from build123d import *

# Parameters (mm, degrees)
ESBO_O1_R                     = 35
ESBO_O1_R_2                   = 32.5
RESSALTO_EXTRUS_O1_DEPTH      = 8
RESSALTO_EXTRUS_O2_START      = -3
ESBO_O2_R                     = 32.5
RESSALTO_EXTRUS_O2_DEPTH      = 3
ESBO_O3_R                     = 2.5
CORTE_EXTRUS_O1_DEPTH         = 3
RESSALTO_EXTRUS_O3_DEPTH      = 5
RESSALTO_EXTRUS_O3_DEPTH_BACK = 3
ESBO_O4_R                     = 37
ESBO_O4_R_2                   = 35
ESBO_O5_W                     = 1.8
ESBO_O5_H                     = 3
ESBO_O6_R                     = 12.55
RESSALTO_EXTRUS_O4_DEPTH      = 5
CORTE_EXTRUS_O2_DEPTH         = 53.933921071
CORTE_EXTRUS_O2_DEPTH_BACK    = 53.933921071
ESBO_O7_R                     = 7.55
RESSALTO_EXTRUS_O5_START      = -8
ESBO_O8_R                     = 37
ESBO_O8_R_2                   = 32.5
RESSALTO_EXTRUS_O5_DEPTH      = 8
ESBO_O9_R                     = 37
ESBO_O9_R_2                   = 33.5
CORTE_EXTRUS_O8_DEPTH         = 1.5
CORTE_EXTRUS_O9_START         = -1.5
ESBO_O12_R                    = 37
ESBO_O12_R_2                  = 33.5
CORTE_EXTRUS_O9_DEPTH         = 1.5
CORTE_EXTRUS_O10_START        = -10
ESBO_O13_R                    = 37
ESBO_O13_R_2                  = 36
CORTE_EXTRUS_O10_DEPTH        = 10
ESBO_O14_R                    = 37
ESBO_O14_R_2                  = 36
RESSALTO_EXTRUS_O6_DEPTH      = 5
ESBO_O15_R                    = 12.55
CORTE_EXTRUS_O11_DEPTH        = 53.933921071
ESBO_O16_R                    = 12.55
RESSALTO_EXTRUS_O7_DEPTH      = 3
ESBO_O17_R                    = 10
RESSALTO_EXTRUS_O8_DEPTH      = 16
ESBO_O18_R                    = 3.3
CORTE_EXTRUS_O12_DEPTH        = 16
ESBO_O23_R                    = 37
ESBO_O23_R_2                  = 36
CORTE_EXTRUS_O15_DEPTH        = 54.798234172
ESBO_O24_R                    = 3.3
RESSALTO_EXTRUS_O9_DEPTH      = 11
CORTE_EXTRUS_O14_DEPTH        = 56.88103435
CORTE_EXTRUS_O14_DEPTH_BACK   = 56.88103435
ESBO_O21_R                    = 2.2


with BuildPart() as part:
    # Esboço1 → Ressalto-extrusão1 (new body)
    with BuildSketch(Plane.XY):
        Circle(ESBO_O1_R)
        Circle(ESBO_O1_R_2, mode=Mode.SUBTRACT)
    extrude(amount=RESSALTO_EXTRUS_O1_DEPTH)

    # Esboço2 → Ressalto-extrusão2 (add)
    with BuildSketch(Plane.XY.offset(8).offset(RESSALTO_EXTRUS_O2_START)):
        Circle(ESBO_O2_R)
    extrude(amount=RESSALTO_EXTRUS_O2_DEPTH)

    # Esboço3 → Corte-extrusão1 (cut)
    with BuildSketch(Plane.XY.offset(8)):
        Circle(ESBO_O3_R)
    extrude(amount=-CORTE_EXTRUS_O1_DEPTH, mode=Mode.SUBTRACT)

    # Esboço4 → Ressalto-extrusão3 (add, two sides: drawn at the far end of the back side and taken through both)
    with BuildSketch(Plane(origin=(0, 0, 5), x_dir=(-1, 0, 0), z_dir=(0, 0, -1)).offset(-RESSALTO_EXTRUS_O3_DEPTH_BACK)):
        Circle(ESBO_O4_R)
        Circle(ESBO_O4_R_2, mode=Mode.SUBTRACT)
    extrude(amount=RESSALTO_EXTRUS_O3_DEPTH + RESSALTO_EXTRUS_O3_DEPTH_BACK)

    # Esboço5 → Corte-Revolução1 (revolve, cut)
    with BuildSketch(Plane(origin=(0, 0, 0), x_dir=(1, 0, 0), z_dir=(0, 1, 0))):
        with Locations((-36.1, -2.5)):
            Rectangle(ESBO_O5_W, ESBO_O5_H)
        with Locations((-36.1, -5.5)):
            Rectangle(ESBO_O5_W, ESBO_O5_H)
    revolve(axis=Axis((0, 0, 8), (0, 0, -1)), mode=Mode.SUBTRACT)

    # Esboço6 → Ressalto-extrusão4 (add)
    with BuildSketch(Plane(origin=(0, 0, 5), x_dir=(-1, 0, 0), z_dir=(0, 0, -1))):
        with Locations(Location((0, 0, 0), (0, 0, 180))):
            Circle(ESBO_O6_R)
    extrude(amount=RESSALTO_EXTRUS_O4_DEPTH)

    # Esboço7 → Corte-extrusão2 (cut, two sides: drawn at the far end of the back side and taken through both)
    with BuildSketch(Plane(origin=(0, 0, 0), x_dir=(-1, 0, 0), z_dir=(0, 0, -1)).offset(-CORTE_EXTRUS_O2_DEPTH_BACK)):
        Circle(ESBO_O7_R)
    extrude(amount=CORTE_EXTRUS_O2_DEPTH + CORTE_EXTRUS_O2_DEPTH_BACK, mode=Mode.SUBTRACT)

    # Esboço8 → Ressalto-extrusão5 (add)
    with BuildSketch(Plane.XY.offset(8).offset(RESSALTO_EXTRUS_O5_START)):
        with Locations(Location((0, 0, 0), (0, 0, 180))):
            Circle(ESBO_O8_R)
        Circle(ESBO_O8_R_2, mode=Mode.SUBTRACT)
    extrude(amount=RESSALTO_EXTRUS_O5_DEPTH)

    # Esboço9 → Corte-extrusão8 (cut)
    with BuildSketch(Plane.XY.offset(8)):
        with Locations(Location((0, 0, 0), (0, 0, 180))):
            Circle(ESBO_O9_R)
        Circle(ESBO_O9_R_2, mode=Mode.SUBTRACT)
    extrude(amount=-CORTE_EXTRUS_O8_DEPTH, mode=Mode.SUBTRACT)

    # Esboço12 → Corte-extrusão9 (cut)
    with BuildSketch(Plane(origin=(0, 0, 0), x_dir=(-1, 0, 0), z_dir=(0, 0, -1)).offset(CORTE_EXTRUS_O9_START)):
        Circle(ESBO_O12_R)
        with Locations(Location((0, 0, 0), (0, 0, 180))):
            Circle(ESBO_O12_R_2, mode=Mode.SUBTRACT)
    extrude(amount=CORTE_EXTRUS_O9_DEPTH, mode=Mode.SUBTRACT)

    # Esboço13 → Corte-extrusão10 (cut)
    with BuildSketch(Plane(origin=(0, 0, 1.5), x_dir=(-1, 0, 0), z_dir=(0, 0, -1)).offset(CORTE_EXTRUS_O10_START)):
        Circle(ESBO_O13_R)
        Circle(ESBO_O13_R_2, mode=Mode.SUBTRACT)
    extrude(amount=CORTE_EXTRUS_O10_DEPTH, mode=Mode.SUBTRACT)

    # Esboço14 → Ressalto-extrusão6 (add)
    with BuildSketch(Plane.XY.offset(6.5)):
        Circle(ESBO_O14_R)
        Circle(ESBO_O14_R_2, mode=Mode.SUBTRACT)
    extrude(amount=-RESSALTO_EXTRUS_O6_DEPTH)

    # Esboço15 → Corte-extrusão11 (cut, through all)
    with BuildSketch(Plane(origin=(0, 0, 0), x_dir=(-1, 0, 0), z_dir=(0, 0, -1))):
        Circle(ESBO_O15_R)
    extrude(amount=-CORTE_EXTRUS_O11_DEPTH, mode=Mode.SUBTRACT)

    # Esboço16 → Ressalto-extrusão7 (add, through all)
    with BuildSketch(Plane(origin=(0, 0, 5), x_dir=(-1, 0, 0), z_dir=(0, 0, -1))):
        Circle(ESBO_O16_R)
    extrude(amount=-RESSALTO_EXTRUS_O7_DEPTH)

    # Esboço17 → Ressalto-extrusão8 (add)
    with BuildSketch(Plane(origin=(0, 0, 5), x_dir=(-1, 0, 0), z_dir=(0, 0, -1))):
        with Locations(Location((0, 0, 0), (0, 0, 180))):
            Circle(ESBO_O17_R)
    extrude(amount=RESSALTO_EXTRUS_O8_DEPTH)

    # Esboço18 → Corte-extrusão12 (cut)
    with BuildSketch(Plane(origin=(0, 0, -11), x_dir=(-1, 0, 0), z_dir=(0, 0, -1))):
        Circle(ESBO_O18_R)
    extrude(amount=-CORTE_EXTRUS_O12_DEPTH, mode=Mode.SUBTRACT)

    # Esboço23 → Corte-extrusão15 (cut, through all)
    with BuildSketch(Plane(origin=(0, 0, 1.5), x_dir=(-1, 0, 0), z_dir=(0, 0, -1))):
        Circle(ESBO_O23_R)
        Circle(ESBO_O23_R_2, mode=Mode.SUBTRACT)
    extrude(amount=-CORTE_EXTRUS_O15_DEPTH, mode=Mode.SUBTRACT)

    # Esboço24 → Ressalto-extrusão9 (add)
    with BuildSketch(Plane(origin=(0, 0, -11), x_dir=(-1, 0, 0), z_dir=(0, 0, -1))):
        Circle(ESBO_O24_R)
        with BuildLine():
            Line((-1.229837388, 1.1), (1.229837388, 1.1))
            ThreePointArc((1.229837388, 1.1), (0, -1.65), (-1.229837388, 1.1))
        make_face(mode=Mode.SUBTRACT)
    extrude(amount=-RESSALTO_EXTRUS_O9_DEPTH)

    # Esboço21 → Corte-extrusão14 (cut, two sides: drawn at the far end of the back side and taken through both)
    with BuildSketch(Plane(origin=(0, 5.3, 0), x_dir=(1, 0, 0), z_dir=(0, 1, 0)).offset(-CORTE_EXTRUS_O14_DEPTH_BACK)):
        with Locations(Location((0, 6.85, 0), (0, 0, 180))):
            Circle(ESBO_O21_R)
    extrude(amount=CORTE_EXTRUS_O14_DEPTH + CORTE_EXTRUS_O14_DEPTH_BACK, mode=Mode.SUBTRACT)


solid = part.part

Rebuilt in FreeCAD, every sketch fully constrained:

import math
import FreeCAD as App
import Part
import Sketcher


def add_polygon(sketch, points):
    """Adds a closed chain of lines whose ends are joined by coincident constraints."""
    first, n = sketch.GeometryCount, len(points)
    for a, b in zip(points, points[1:] + points[:1]):
        sketch.addGeometry(Part.LineSegment(App.Vector(*a, 0), App.Vector(*b, 0)), False)
    for i in range(n):
        sketch.addConstraint(Sketcher.Constraint("Coincident", first + i, 2, first + (i + 1) % n, 1))

doc = App.newDocument("Part")
params = doc.addObject("Spreadsheet::Sheet", "Params")
for row, (alias, value) in enumerate([
    ("sketch1_diameter", "70 mm"),
    ("sketch1_diameter2", "65 mm"),
    ("pad1_length", "8 mm"),
    ("sketch2_diameter", "65 mm"),
    ("pad2_length", "3 mm"),
    ("sketch3_diameter", "5 mm"),
    ("pocket1_length", "3 mm"),
    ("sketch4_diameter", "74 mm"),
    ("sketch4_diameter2", "70 mm"),
    ("pad3_length", "5 mm"),
    ("pad3_length2", "3 mm"),
    ("sketch5_height", "6 mm"),
    ("sketch5_width", "1.8 mm"),
    ("groove_angle", "360 deg"),
    ("sketch6_diameter", "25.1 mm"),
    ("pad4_length", "5 mm"),
    ("sketch7_diameter", "15.1 mm"),
    ("sketch8_diameter", "74 mm"),
    ("sketch8_diameter2", "65 mm"),
    ("pad5_length", "8 mm"),
    ("sketch9_diameter", "74 mm"),
    ("sketch9_diameter2", "67 mm"),
    ("pocket3_length", "1.5 mm"),
    ("sketch10_diameter", "74 mm"),
    ("sketch10_diameter2", "67 mm"),
    ("pocket4_length", "1.5 mm"),
    ("sketch11_diameter", "74 mm"),
    ("sketch11_diameter2", "72 mm"),
    ("pocket5_length", "10 mm"),
    ("sketch12_diameter", "74 mm"),
    ("sketch12_diameter2", "72 mm"),
    ("pad6_length", "5 mm"),
    ("sketch13_diameter", "25.1 mm"),
    ("sketch14_diameter", "25.1 mm"),
    ("pad7_length", "3 mm"),
    ("sketch15_diameter", "20 mm"),
    ("pad8_length", "16 mm"),
    ("sketch16_diameter", "6.6 mm"),
    ("pocket7_length", "16 mm"),
    ("sketch17_diameter", "74 mm"),
    ("sketch17_diameter2", "72 mm"),
    ("sketch18_diameter", "6.6 mm"),
    ("sketch18_radius", "1.65 mm"),
    ("pad9_length", "11 mm"),
    ("sketch19_diameter", "4.4 mm"),
], start=1):
    params.set(f"A{row}", alias)
    params.set(f"B{row}", "=" + value)
    params.setAlias(f"B{row}", alias)

body = doc.addObject("PartDesign::Body", "Body")

# Sketch on XY plane
sketch1 = body.newObject("Sketcher::SketchObject", "Sketch")
sketch1.AttachmentSupport = (doc.getObject("XY_Plane"), [""])
sketch1.MapMode = "FlatFace"
sketch1.addGeometry([
    Part.Circle(App.Vector(0, 0, 0), App.Vector(0, 0, 1), 35),
    Part.Circle(App.Vector(0, 0, 0), App.Vector(0, 0, 1), 32.5),
], False)
sketch1.addConstraint([
    Sketcher.Constraint("Coincident", 0, 3, -1, 1),
    Sketcher.Constraint("Coincident", 1, 3, -1, 1),
    Sketcher.Constraint("Diameter", 0, 70.0),
    Sketcher.Constraint("Diameter", 1, 65.0),
])
sketch1.setExpression("Constraints[2]", "Params.sketch1_diameter")
sketch1.setExpression("Constraints[3]", "Params.sketch1_diameter2")
pad1 = body.newObject("PartDesign::Pad", "Pad")
pad1.Profile = sketch1
pad1.setExpression("Length", "Params.pad1_length")

# Sketch on XY plane
sketch2 = body.newObject("Sketcher::SketchObject", "Sketch001")
sketch2.AttachmentSupport = (doc.getObject("XY_Plane"), [""])
sketch2.MapMode = "FlatFace"
sketch2.AttachmentOffset = App.Placement(App.Vector(0, 0, 5), App.Rotation())
sketch2.addGeometry(Part.Circle(App.Vector(0, 0, 0), App.Vector(0, 0, 1), 32.5), False)
sketch2.addConstraint([
    Sketcher.Constraint("Coincident", 0, 3, -1, 1),
    Sketcher.Constraint("Diameter", 0, 65.0),
])
sketch2.setExpression("Constraints[1]", "Params.sketch2_diameter")
pad2 = body.newObject("PartDesign::Pad", "Pad001")
pad2.Profile = sketch2
pad2.setExpression("Length", "Params.pad2_length")

# Sketch on XY plane
sketch3 = body.newObject("Sketcher::SketchObject", "Sketch002")
sketch3.AttachmentSupport = (doc.getObject("XY_Plane"), [""])
sketch3.MapMode = "FlatFace"
sketch3.AttachmentOffset = App.Placement(App.Vector(0, 0, 8), App.Rotation())
sketch3.addGeometry(Part.Circle(App.Vector(0, 0, 0), App.Vector(0, 0, 1), 2.5), False)
sketch3.addConstraint([
    Sketcher.Constraint("Coincident", 0, 3, -1, 1),
    Sketcher.Constraint("Diameter", 0, 5.0),
])
sketch3.setExpression("Constraints[1]", "Params.sketch3_diameter")
pocket1 = body.newObject("PartDesign::Pocket", "Pocket")
pocket1.Profile = sketch3
pocket1.setExpression("Length", "Params.pocket1_length")

# Sketch on XY plane
sketch4 = body.newObject("Sketcher::SketchObject", "Sketch003")
sketch4.AttachmentSupport = (doc.getObject("XY_Plane"), [""])
sketch4.MapMode = "FlatFace"
sketch4.AttachmentOffset = App.Placement(App.Vector(0, 0, 5), App.Rotation())
sketch4.addGeometry([
    Part.Circle(App.Vector(0, 0, 0), App.Vector(0, 0, 1), 37),
    Part.Circle(App.Vector(0, 0, 0), App.Vector(0, 0, 1), 35),
], False)
sketch4.addConstraint([
    Sketcher.Constraint("Coincident", 0, 3, -1, 1),
    Sketcher.Constraint("Coincident", 1, 3, -1, 1),
    Sketcher.Constraint("Diameter", 0, 74.0),
    Sketcher.Constraint("Diameter", 1, 70.0),
])
sketch4.setExpression("Constraints[2]", "Params.sketch4_diameter")
sketch4.setExpression("Constraints[3]", "Params.sketch4_diameter2")
pad3 = body.newObject("PartDesign::Pad", "Pad002")
pad3.Profile = sketch4
pad3.Type = "TwoLengths"
pad3.setExpression("Length", "Params.pad3_length")
pad3.setExpression("Length2", "Params.pad3_length2")
pad3.Reversed = True

# Sketch on XZ plane
sketch5 = body.newObject("Sketcher::SketchObject", "Sketch004")
sketch5.AttachmentSupport = (doc.getObject("XZ_Plane"), [""])
sketch5.MapMode = "FlatFace"
add_polygon(sketch5, [(-37, 1), (-37, 7), (-35.2, 7), (-35.2, 1)])  # lines 0-3
sketch5.addConstraint([
    Sketcher.Constraint("Vertical", 0),
    Sketcher.Constraint("Horizontal", 1),
    Sketcher.Constraint("Vertical", 2),
    Sketcher.Constraint("Horizontal", 3),
    Sketcher.Constraint("DistanceY", 0, 1, 0, 2, 6.0),
    Sketcher.Constraint("DistanceX", 1, 1, 1, 2, 1.8),
    Sketcher.Constraint("DistanceX", 0, 2, -1, 1, 37.0),
    Sketcher.Constraint("DistanceY", -1, 1, 0, 2, 7.0),
])
sketch5.setExpression("Constraints[8]", "Params.sketch5_height")
sketch5.setExpression("Constraints[9]", "Params.sketch5_width")
groove = body.newObject("PartDesign::Groove", "Groove")
groove.Profile = sketch5
groove.ReferenceAxis = (sketch5, ["V_Axis"])
groove.setExpression("Angle", "Params.groove_angle")

# Sketch on XY plane
sketch6 = body.newObject("Sketcher::SketchObject", "Sketch005")
sketch6.AttachmentSupport = (doc.getObject("XY_Plane"), [""])
sketch6.MapMode = "FlatFace"
sketch6.AttachmentOffset = App.Placement(App.Vector(0, 0, 5), App.Rotation())
sketch6.addGeometry(Part.Circle(App.Vector(0, 0, 0), App.Vector(0, 0, 1), 12.55), False)
sketch6.addConstraint([
    Sketcher.Constraint("Coincident", 0, 3, -1, 1),
    Sketcher.Constraint("Diameter", 0, 25.1),
])
sketch6.setExpression("Constraints[1]", "Params.sketch6_diameter")
pad4 = body.newObject("PartDesign::Pad", "Pad003")
pad4.Profile = sketch6
pad4.setExpression("Length", "Params.pad4_length")
pad4.Reversed = True

# Sketch on XY plane
sketch7 = body.newObject("Sketcher::SketchObject", "Sketch006")
sketch7.AttachmentSupport = (doc.getObject("XY_Plane"), [""])
sketch7.MapMode = "FlatFace"
sketch7.addGeometry(Part.Circle(App.Vector(0, 0, 0), App.Vector(0, 0, 1), 7.55), False)
sketch7.addConstraint([
    Sketcher.Constraint("Coincident", 0, 3, -1, 1),
    Sketcher.Constraint("Diameter", 0, 15.1),
])
sketch7.setExpression("Constraints[1]", "Params.sketch7_diameter")
pocket2 = body.newObject("PartDesign::Pocket", "Pocket001")
pocket2.Profile = sketch7
pocket2.Type = "ThroughAll"
pocket2.Midplane = True

# Sketch on XY plane
sketch8 = body.newObject("Sketcher::SketchObject", "Sketch007")
sketch8.AttachmentSupport = (doc.getObject("XY_Plane"), [""])
sketch8.MapMode = "FlatFace"
sketch8.addGeometry([
    Part.Circle(App.Vector(0, 0, 0), App.Vector(0, 0, 1), 37),
    Part.Circle(App.Vector(0, 0, 0), App.Vector(0, 0, 1), 32.5),
], False)
sketch8.addConstraint([
    Sketcher.Constraint("Coincident", 0, 3, -1, 1),
    Sketcher.Constraint("Coincident", 1, 3, -1, 1),
    Sketcher.Constraint("Diameter", 0, 74.0),
    Sketcher.Constraint("Diameter", 1, 65.0),
])
sketch8.setExpression("Constraints[2]", "Params.sketch8_diameter")
sketch8.setExpression("Constraints[3]", "Params.sketch8_diameter2")
pad5 = body.newObject("PartDesign::Pad", "Pad004")
pad5.Profile = sketch8
pad5.setExpression("Length", "Params.pad5_length")

# Sketch on XY plane
sketch9 = body.newObject("Sketcher::SketchObject", "Sketch008")
sketch9.AttachmentSupport = (doc.getObject("XY_Plane"), [""])
sketch9.MapMode = "FlatFace"
sketch9.AttachmentOffset = App.Placement(App.Vector(0, 0, 8), App.Rotation())
sketch9.addGeometry([
    Part.Circle(App.Vector(0, 0, 0), App.Vector(0, 0, 1), 37),
    Part.Circle(App.Vector(0, 0, 0), App.Vector(0, 0, 1), 33.5),
], False)
sketch9.addConstraint([
    Sketcher.Constraint("Coincident", 0, 3, -1, 1),
    Sketcher.Constraint("Coincident", 1, 3, -1, 1),
    Sketcher.Constraint("Diameter", 0, 74.0),
    Sketcher.Constraint("Diameter", 1, 67.0),
])
sketch9.setExpression("Constraints[2]", "Params.sketch9_diameter")
sketch9.setExpression("Constraints[3]", "Params.sketch9_diameter2")
pocket3 = body.newObject("PartDesign::Pocket", "Pocket002")
pocket3.Profile = sketch9
pocket3.setExpression("Length", "Params.pocket3_length")

# Sketch on XY plane
sketch10 = body.newObject("Sketcher::SketchObject", "Sketch009")
sketch10.AttachmentSupport = (doc.getObject("XY_Plane"), [""])
sketch10.MapMode = "FlatFace"
sketch10.AttachmentOffset = App.Placement(App.Vector(0, 0, 1.5), App.Rotation())
sketch10.addGeometry([
    Part.Circle(App.Vector(0, 0, 0), App.Vector(0, 0, 1), 37),
    Part.Circle(App.Vector(0, 0, 0), App.Vector(0, 0, 1), 33.5),
], False)
sketch10.addConstraint([
    Sketcher.Constraint("Coincident", 0, 3, -1, 1),
    Sketcher.Constraint("Coincident", 1, 3, -1, 1),
    Sketcher.Constraint("Diameter", 0, 74.0),
    Sketcher.Constraint("Diameter", 1, 67.0),
])
sketch10.setExpression("Constraints[2]", "Params.sketch10_diameter")
sketch10.setExpression("Constraints[3]", "Params.sketch10_diameter2")
pocket4 = body.newObject("PartDesign::Pocket", "Pocket003")
pocket4.Profile = sketch10
pocket4.setExpression("Length", "Params.pocket4_length")

# Sketch on XY plane
sketch11 = body.newObject("Sketcher::SketchObject", "Sketch010")
sketch11.AttachmentSupport = (doc.getObject("XY_Plane"), [""])
sketch11.MapMode = "FlatFace"
sketch11.AttachmentOffset = App.Placement(App.Vector(0, 0, 11.5), App.Rotation())
sketch11.addGeometry([
    Part.Circle(App.Vector(0, 0, 0), App.Vector(0, 0, 1), 37),
    Part.Circle(App.Vector(0, 0, 0), App.Vector(0, 0, 1), 36),
], False)
sketch11.addConstraint([
    Sketcher.Constraint("Coincident", 0, 3, -1, 1),
    Sketcher.Constraint("Coincident", 1, 3, -1, 1),
    Sketcher.Constraint("Diameter", 0, 74.0),
    Sketcher.Constraint("Diameter", 1, 72.0),
])
sketch11.setExpression("Constraints[2]", "Params.sketch11_diameter")
sketch11.setExpression("Constraints[3]", "Params.sketch11_diameter2")
pocket5 = body.newObject("PartDesign::Pocket", "Pocket004")
pocket5.Profile = sketch11
pocket5.setExpression("Length", "Params.pocket5_length")

# Sketch on XY plane
sketch12 = body.newObject("Sketcher::SketchObject", "Sketch011")
sketch12.AttachmentSupport = (doc.getObject("XY_Plane"), [""])
sketch12.MapMode = "FlatFace"
sketch12.AttachmentOffset = App.Placement(App.Vector(0, 0, 6.5), App.Rotation())
sketch12.addGeometry([
    Part.Circle(App.Vector(0, 0, 0), App.Vector(0, 0, 1), 37),
    Part.Circle(App.Vector(0, 0, 0), App.Vector(0, 0, 1), 36),
], False)
sketch12.addConstraint([
    Sketcher.Constraint("Coincident", 0, 3, -1, 1),
    Sketcher.Constraint("Coincident", 1, 3, -1, 1),
    Sketcher.Constraint("Diameter", 0, 74.0),
    Sketcher.Constraint("Diameter", 1, 72.0),
])
sketch12.setExpression("Constraints[2]", "Params.sketch12_diameter")
sketch12.setExpression("Constraints[3]", "Params.sketch12_diameter2")
pad6 = body.newObject("PartDesign::Pad", "Pad005")
pad6.Profile = sketch12
pad6.setExpression("Length", "Params.pad6_length")
pad6.Reversed = True

# Sketch on XY plane
sketch13 = body.newObject("Sketcher::SketchObject", "Sketch012")
sketch13.AttachmentSupport = (doc.getObject("XY_Plane"), [""])
sketch13.MapMode = "FlatFace"
sketch13.addGeometry(Part.Circle(App.Vector(0, 0, 0), App.Vector(0, 0, 1), 12.55), False)
sketch13.addConstraint([
    Sketcher.Constraint("Coincident", 0, 3, -1, 1),
    Sketcher.Constraint("Diameter", 0, 25.1),
])
sketch13.setExpression("Constraints[1]", "Params.sketch13_diameter")
pocket6 = body.newObject("PartDesign::Pocket", "Pocket005")
pocket6.Profile = sketch13
pocket6.Type = "ThroughAll"
pocket6.Reversed = True

# Sketch on XY plane
sketch14 = body.newObject("Sketcher::SketchObject", "Sketch013")
sketch14.AttachmentSupport = (doc.getObject("XY_Plane"), [""])
sketch14.MapMode = "FlatFace"
sketch14.AttachmentOffset = App.Placement(App.Vector(0, 0, 5), App.Rotation())
sketch14.addGeometry(Part.Circle(App.Vector(0, 0, 0), App.Vector(0, 0, 1), 12.55), False)
sketch14.addConstraint([
    Sketcher.Constraint("Coincident", 0, 3, -1, 1),
    Sketcher.Constraint("Diameter", 0, 25.1),
])
sketch14.setExpression("Constraints[1]", "Params.sketch14_diameter")
pad7 = body.newObject("PartDesign::Pad", "Pad006")
pad7.Profile = sketch14
pad7.setExpression("Length", "Params.pad7_length")

# Sketch on XY plane
sketch15 = body.newObject("Sketcher::SketchObject", "Sketch014")
sketch15.AttachmentSupport = (doc.getObject("XY_Plane"), [""])
sketch15.MapMode = "FlatFace"
sketch15.AttachmentOffset = App.Placement(App.Vector(0, 0, 5), App.Rotation())
sketch15.addGeometry(Part.Circle(App.Vector(0, 0, 0), App.Vector(0, 0, 1), 10), False)
sketch15.addConstraint([
    Sketcher.Constraint("Coincident", 0, 3, -1, 1),
    Sketcher.Constraint("Diameter", 0, 20.0),
])
sketch15.setExpression("Constraints[1]", "Params.sketch15_diameter")
pad8 = body.newObject("PartDesign::Pad", "Pad007")
pad8.Profile = sketch15
pad8.setExpression("Length", "Params.pad8_length")
pad8.Reversed = True

# Sketch on XY plane
sketch16 = body.newObject("Sketcher::SketchObject", "Sketch015")
sketch16.AttachmentSupport = (doc.getObject("XY_Plane"), [""])
sketch16.MapMode = "FlatFace"
sketch16.AttachmentOffset = App.Placement(App.Vector(0, 0, -11), App.Rotation())
sketch16.addGeometry(Part.Circle(App.Vector(0, 0, 0), App.Vector(0, 0, 1), 3.3), False)
sketch16.addConstraint([
    Sketcher.Constraint("Coincident", 0, 3, -1, 1),
    Sketcher.Constraint("Diameter", 0, 6.6),
])
sketch16.setExpression("Constraints[1]", "Params.sketch16_diameter")
pocket7 = body.newObject("PartDesign::Pocket", "Pocket006")
pocket7.Profile = sketch16
pocket7.setExpression("Length", "Params.pocket7_length")
pocket7.Reversed = True

# Sketch on XY plane
sketch17 = body.newObject("Sketcher::SketchObject", "Sketch016")
sketch17.AttachmentSupport = (doc.getObject("XY_Plane"), [""])
sketch17.MapMode = "FlatFace"
sketch17.AttachmentOffset = App.Placement(App.Vector(0, 0, 1.5), App.Rotation())
sketch17.addGeometry([
    Part.Circle(App.Vector(0, 0, 0), App.Vector(0, 0, 1), 37),
    Part.Circle(App.Vector(0, 0, 0), App.Vector(0, 0, 1), 36),
], False)
sketch17.addConstraint([
    Sketcher.Constraint("Coincident", 0, 3, -1, 1),
    Sketcher.Constraint("Coincident", 1, 3, -1, 1),
    Sketcher.Constraint("Diameter", 0, 74.0),
    Sketcher.Constraint("Diameter", 1, 72.0),
])
sketch17.setExpression("Constraints[2]", "Params.sketch17_diameter")
sketch17.setExpression("Constraints[3]", "Params.sketch17_diameter2")
pocket8 = body.newObject("PartDesign::Pocket", "Pocket007")
pocket8.Profile = sketch17
pocket8.Type = "ThroughAll"
pocket8.Reversed = True

# Sketch on XY plane
sketch18 = body.newObject("Sketcher::SketchObject", "Sketch017")
sketch18.AttachmentSupport = (doc.getObject("XY_Plane"), [""])
sketch18.MapMode = "FlatFace"
sketch18.AttachmentOffset = App.Placement(App.Vector(0, 0, -11), App.Rotation())
sketch18.addGeometry([
    Part.Circle(App.Vector(0, 0, 0), App.Vector(0, 0, 1), 3.3),
    Part.ArcOfCircle(Part.Circle(App.Vector(0, 0, 0), App.Vector(0, 0, 1), 1.65), math.radians(138.189685), math.radians(401.810315)),
    Part.LineSegment(App.Vector(1.229837, 1.1, 0), App.Vector(-1.229837, 1.1, 0)),
], False)
sketch18.addConstraint([
    Sketcher.Constraint("Coincident", 1, 1, 2, 2),
    Sketcher.Constraint("Coincident", 2, 1, 1, 2),
    Sketcher.Constraint("Horizontal", 2),
    Sketcher.Constraint("Coincident", 0, 3, -1, 1),
    Sketcher.Constraint("Coincident", 1, 3, -1, 1),
    Sketcher.Constraint("Diameter", 0, 6.6),
    Sketcher.Constraint("Radius", 1, 1.65),
    Sketcher.Constraint("DistanceY", -1, 1, 1, 1, 1.1),
])
sketch18.setExpression("Constraints[5]", "Params.sketch18_diameter")
sketch18.setExpression("Constraints[6]", "Params.sketch18_radius")
pad9 = body.newObject("PartDesign::Pad", "Pad008")
pad9.Profile = sketch18
pad9.setExpression("Length", "Params.pad9_length")

# Sketch on XZ plane
sketch19 = body.newObject("Sketcher::SketchObject", "Sketch018")
sketch19.AttachmentSupport = (doc.getObject("XZ_Plane"), [""])
sketch19.MapMode = "FlatFace"
sketch19.AttachmentOffset = App.Placement(App.Vector(0, 0, -5.3), App.Rotation())
sketch19.addGeometry(Part.Circle(App.Vector(0, -6.85, 0), App.Vector(0, 0, 1), 2.2), False)
sketch19.addConstraint([
    Sketcher.Constraint("PointOnObject", 0, 3, -2),
    Sketcher.Constraint("Diameter", 0, 4.4),
    Sketcher.Constraint("DistanceY", 0, 3, -1, 1, 6.85),
])
sketch19.setExpression("Constraints[1]", "Params.sketch19_diameter")
pocket9 = body.newObject("PartDesign::Pocket", "Pocket008")
pocket9.Profile = sketch19
pocket9.Type = "ThroughAll"
pocket9.Midplane = True

doc.recompute()
